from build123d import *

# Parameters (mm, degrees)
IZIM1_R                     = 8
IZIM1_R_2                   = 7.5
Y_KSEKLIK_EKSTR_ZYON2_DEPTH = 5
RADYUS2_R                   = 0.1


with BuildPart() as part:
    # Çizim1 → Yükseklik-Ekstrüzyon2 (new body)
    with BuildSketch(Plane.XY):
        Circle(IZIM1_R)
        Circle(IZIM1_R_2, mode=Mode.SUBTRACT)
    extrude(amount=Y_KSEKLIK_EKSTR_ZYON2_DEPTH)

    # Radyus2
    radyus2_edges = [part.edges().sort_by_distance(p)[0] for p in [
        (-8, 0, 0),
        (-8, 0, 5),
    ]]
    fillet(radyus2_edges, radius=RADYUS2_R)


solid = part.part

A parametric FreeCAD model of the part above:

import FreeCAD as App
import Part
import Sketcher

V = App.Vector


def edges_at(feature, points):
    """Names of the edges that pass closest to the given points."""
    edges = feature.Shape.Edges
    near = lambda p: min(range(len(edges)), key=lambda i: edges[i].distToShape(Part.Vertex(*p))[0])
    return sorted({f"Edge{near(p) + 1}" for p in points})

doc = App.newDocument("Part")
params = doc.addObject("Spreadsheet::Sheet", "Params")
for row, (alias, value) in enumerate([
    ("sketch1_diameter", "16 mm"),
    ("sketch1_diameter2", "15 mm"),
    ("pad1_length", "5 mm"),
    ("fillet_radius", "0.1 mm"),
], start=1):
    params.set(f"A{row}", alias)
    params.set(f"B{row}", "=" + value)
    params.setAlias(f"B{row}", alias)

body = doc.addObject("PartDesign::Body", "Body")

# Sketch on XY plane
sketch1 = body.newObject("Sketcher::SketchObject", "Sketch")
sketch1.AttachmentSupport = (doc.getObject("XY_Plane"), [""])
sketch1.MapMode = "FlatFace"
sketch1.addGeometry(Part.Circle(V(0, 0, 0), V(0, 0, 1), 8), False)
sketch1.addGeometry(Part.Circle(V(0, 0, 0), V(0, 0, 1), 7.5), False)
sketch1.addConstraint(Sketcher.Constraint("Coincident", 0, 3, -1, 1))
sketch1.addConstraint(Sketcher.Constraint("Coincident", 1, 3, -1, 1))
sketch1.addConstraint(Sketcher.Constraint("Diameter", 0, 16.0))
sketch1.addConstraint(Sketcher.Constraint("Diameter", 1, 15.0))
sketch1.setExpression("Constraints[2]", "Params.sketch1_diameter")
sketch1.setExpression("Constraints[3]", "Params.sketch1_diameter2")
pad1 = body.newObject("PartDesign::Pad", "Pad")
pad1.Profile = sketch1
pad1.setExpression("Length", "Params.pad1_length")
doc.recompute()

fillet = body.newObject("PartDesign::Fillet", "Fillet")
fillet.Base = (pad1, edges_at(pad1, [(-8, 0, 0), (-8, 0, 5)]))
fillet.setExpression("Radius", "Params.fillet_radius")

doc.recompute()
